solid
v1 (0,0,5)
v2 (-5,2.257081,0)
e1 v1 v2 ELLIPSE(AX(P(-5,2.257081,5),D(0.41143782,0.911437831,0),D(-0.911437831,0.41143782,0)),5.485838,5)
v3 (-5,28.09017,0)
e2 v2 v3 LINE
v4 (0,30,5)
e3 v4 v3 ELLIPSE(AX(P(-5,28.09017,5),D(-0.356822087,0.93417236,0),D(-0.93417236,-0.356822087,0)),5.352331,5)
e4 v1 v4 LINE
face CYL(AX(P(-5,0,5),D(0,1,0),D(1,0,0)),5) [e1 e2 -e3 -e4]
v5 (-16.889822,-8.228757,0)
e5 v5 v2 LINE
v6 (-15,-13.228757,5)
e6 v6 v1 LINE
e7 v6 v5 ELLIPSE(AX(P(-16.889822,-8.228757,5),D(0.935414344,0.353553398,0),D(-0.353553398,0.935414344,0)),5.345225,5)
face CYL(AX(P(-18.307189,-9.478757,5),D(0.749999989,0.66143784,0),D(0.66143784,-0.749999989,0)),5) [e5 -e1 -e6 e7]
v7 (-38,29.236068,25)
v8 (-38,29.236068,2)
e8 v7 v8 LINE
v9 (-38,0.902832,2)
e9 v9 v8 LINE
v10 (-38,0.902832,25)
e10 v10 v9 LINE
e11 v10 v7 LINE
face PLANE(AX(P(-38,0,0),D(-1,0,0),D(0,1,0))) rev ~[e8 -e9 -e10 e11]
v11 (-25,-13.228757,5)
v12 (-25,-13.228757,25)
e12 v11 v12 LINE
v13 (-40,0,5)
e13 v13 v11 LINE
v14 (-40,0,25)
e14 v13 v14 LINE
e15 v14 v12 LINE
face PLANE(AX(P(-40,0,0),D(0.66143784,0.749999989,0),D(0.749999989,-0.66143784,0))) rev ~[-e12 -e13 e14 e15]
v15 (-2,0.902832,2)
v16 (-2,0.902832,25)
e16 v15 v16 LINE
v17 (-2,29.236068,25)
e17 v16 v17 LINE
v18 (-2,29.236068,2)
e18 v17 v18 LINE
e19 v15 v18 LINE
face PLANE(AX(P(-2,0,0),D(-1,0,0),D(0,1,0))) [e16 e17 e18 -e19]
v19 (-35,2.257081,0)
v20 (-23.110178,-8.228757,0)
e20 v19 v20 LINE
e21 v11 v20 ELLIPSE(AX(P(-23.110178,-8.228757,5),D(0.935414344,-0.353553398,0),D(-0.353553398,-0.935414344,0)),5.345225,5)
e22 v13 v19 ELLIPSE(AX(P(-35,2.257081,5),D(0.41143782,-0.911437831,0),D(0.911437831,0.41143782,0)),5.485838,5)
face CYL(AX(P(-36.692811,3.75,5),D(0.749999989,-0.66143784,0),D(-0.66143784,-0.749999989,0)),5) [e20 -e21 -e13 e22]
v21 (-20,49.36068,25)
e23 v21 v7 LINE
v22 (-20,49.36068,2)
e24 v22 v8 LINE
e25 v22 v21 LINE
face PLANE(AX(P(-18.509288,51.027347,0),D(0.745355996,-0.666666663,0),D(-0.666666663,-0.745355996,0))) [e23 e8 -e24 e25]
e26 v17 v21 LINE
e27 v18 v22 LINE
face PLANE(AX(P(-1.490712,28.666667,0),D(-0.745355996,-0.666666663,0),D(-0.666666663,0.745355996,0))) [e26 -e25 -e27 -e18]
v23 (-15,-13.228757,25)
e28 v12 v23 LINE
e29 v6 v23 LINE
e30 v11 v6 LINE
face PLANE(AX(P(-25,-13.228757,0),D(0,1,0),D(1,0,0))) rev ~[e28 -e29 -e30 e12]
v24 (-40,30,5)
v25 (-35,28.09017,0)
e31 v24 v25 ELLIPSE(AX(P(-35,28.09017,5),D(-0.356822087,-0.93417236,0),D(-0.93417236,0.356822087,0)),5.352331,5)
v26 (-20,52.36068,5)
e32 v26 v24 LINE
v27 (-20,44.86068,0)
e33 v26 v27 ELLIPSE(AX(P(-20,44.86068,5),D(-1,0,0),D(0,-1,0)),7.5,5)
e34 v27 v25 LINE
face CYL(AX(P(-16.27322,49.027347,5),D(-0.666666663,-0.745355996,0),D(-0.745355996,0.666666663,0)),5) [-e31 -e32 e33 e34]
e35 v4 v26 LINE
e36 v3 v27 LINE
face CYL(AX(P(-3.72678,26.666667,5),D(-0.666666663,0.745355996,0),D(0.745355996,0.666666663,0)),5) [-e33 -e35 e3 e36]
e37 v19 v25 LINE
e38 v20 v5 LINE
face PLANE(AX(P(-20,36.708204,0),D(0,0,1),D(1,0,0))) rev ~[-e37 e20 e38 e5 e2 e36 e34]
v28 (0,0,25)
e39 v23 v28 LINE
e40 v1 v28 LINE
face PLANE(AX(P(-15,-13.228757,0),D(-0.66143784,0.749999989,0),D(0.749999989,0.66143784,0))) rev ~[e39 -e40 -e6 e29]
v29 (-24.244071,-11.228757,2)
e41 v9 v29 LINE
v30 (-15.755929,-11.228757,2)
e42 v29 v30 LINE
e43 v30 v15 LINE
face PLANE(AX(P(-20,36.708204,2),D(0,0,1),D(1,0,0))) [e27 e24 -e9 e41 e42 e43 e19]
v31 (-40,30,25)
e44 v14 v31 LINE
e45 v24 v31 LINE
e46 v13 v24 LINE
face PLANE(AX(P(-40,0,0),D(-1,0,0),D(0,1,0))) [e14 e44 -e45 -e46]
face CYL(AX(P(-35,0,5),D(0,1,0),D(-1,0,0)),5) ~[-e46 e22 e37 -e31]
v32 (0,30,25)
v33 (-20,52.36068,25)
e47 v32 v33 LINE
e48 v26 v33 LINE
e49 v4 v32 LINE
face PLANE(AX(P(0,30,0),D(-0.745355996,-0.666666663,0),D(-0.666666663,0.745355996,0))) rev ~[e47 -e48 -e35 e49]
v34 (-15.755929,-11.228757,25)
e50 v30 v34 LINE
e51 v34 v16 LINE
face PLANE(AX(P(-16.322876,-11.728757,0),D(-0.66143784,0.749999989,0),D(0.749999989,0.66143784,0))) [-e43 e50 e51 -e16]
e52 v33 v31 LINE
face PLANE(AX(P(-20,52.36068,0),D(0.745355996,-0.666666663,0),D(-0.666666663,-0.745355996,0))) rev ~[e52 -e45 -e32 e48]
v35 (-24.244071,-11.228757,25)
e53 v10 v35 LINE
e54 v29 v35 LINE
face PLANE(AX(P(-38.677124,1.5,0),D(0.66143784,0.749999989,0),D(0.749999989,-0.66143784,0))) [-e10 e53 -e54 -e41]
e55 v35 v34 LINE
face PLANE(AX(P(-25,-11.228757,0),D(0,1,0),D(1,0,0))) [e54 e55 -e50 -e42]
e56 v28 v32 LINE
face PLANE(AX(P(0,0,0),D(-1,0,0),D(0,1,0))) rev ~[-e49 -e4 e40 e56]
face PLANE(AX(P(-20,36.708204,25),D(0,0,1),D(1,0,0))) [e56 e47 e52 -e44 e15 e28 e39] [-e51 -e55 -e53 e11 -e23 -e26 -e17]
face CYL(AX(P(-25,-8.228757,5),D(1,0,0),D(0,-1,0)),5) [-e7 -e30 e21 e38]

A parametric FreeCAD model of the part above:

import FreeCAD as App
import Part
import Sketcher

V = App.Vector
Q = App.Units.Quantity


def edges_at(feature, points):
    """Names of the edges that pass closest to the given points."""
    edges = feature.Shape.Edges
    near = lambda p: min(range(len(edges)), key=lambda i: edges[i].distToShape(Part.Vertex(*p))[0])
    return sorted({f"Edge{near(p) + 1}" for p in points})


def faces_at(feature, points):
    """Names of the faces that lie closest to the given points."""
    faces = feature.Shape.Faces
    near = lambda p: min(range(len(faces)), key=lambda i: faces[i].distToShape(Part.Vertex(*p))[0])
    return sorted({f"Face{near(p) + 1}" for p in points})


def add_polygon(sketch, points):
    """Adds a closed chain of lines whose ends are joined by coincident constraints."""
    first, n = sketch.GeometryCount, len(points)
    for a, b in zip(points, points[1:] + points[:1]):
        sketch.addGeometry(Part.LineSegment(App.Vector(*a, 0), App.Vector(*b, 0)), False)
    for i in range(n):
        sketch.addConstraint(Sketcher.Constraint("Coincident", first + i, 2, first + (i + 1) % n, 1))

doc = App.newDocument("Part")
body = doc.addObject("PartDesign::Body", "Body")

sketch1 = body.newObject("Sketcher::SketchObject", "Sketch")
sketch1.AttachmentSupport = (doc.getObject("XY_Plane"), [""])
sketch1.MapMode = "FlatFace"
add_polygon(sketch1, [(0, 30), (-20, 52), (-40, 30), (-40, 0), (-25, -13), (-15, -13), (0, 0)])
sketch1.addConstraint([
    Sketcher.Constraint("Vertical", 2),
    Sketcher.Constraint("Horizontal", 4),
    Sketcher.Constraint("Vertical", 6),
    Sketcher.Constraint("Coincident", 5, 2, -1, 1),
    Sketcher.Constraint("PointOnObject", 2, 2, -1),
    Sketcher.Constraint("Horizontal", 1, 2, 6, 2),
    Sketcher.Constraint("Equal", 0, 1),
    Sketcher.Constraint("Equal", 3, 5),
    Sketcher.Constraint("DistanceX", 4, 1, 4, 2, Q("10 mm")),
    Sketcher.Constraint("DistanceY", 2, 2, 2, 1, Q("30 mm")),
    Sketcher.Constraint("Distance", 0, Q("30 mm")),
    Sketcher.Constraint("Distance", 3, Q("20 mm")),
    Sketcher.Constraint("DistanceX", 0, 2, -1, 1, Q("20 mm")),
])
pad1 = body.newObject("PartDesign::Pad", "Pad")
pad1.Profile = sketch1
pad1.Length = 25
doc.recompute()

thickness = body.newObject("PartDesign::Thickness", "Thickness")
thickness.Base = (pad1, faces_at(pad1, [(-20, 19.566, 25)]))
thickness.Value = 2
thickness.Reversed = True
thickness.Join = "Arc"
doc.recompute()

fillet = body.newObject("PartDesign::Fillet", "Fillet")
fillet.Base = (thickness, edges_at(thickness, [
    (-40, 15, 0),
    (-30, 41.18, 0),
    (-10, 41.18, 0),
    (0, 15, 0),
    (-32.5, -6.614, 0),
    (-7.5, -6.614, 0),
    (-20, -13.229, 0),
]))
fillet.Radius = 5

doc.recompute()
